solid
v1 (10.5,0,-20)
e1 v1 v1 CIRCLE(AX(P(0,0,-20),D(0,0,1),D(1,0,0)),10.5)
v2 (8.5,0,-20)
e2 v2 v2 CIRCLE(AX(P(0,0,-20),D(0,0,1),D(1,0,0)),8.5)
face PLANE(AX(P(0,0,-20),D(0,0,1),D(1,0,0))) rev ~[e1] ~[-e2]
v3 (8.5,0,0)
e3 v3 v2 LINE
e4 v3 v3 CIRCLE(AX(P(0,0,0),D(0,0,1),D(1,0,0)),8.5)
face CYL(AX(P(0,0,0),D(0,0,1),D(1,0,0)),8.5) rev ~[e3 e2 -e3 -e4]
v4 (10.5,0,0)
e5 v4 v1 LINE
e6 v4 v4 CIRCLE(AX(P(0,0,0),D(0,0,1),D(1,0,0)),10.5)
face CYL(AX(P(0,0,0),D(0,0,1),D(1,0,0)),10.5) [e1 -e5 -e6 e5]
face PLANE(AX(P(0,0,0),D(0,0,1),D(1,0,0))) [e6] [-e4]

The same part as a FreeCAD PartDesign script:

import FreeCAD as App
import Part
import Sketcher
Q = App.Units.Quantity

doc = App.newDocument("Part")
body = doc.addObject("PartDesign::Body", "Body")

# Sketch on XY plane
sketch1 = body.newObject("Sketcher::SketchObject", "Sketch")
sketch1.AttachmentSupport = (doc.getObject("XY_Plane"), [""])
sketch1.MapMode = "FlatFace"
sketch1.addGeometry(Part.Circle(App.Vector(0, 0, 0), App.Vector(0, 0, 1), 10), False)
sketch1.addGeometry(Part.Circle(App.Vector(0, 0, 0), App.Vector(0, 0, 1), 8), False)
sketch1.addConstraint(Sketcher.Constraint("Coincident", 0, 3, -1, 1))
sketch1.addConstraint(Sketcher.Constraint("Coincident", 1, 3, -1, 1))
sketch1.addConstraint(Sketcher.Constraint("Diameter", 0, Q("21 mm")))
sketch1.addConstraint(Sketcher.Constraint("Diameter", 1, Q("17 mm")))
pad1 = body.newObject("PartDesign::Pad", "Pad")
pad1.Profile = sketch1
pad1.Length = 20
pad1.Reversed = True

doc.recompute()
